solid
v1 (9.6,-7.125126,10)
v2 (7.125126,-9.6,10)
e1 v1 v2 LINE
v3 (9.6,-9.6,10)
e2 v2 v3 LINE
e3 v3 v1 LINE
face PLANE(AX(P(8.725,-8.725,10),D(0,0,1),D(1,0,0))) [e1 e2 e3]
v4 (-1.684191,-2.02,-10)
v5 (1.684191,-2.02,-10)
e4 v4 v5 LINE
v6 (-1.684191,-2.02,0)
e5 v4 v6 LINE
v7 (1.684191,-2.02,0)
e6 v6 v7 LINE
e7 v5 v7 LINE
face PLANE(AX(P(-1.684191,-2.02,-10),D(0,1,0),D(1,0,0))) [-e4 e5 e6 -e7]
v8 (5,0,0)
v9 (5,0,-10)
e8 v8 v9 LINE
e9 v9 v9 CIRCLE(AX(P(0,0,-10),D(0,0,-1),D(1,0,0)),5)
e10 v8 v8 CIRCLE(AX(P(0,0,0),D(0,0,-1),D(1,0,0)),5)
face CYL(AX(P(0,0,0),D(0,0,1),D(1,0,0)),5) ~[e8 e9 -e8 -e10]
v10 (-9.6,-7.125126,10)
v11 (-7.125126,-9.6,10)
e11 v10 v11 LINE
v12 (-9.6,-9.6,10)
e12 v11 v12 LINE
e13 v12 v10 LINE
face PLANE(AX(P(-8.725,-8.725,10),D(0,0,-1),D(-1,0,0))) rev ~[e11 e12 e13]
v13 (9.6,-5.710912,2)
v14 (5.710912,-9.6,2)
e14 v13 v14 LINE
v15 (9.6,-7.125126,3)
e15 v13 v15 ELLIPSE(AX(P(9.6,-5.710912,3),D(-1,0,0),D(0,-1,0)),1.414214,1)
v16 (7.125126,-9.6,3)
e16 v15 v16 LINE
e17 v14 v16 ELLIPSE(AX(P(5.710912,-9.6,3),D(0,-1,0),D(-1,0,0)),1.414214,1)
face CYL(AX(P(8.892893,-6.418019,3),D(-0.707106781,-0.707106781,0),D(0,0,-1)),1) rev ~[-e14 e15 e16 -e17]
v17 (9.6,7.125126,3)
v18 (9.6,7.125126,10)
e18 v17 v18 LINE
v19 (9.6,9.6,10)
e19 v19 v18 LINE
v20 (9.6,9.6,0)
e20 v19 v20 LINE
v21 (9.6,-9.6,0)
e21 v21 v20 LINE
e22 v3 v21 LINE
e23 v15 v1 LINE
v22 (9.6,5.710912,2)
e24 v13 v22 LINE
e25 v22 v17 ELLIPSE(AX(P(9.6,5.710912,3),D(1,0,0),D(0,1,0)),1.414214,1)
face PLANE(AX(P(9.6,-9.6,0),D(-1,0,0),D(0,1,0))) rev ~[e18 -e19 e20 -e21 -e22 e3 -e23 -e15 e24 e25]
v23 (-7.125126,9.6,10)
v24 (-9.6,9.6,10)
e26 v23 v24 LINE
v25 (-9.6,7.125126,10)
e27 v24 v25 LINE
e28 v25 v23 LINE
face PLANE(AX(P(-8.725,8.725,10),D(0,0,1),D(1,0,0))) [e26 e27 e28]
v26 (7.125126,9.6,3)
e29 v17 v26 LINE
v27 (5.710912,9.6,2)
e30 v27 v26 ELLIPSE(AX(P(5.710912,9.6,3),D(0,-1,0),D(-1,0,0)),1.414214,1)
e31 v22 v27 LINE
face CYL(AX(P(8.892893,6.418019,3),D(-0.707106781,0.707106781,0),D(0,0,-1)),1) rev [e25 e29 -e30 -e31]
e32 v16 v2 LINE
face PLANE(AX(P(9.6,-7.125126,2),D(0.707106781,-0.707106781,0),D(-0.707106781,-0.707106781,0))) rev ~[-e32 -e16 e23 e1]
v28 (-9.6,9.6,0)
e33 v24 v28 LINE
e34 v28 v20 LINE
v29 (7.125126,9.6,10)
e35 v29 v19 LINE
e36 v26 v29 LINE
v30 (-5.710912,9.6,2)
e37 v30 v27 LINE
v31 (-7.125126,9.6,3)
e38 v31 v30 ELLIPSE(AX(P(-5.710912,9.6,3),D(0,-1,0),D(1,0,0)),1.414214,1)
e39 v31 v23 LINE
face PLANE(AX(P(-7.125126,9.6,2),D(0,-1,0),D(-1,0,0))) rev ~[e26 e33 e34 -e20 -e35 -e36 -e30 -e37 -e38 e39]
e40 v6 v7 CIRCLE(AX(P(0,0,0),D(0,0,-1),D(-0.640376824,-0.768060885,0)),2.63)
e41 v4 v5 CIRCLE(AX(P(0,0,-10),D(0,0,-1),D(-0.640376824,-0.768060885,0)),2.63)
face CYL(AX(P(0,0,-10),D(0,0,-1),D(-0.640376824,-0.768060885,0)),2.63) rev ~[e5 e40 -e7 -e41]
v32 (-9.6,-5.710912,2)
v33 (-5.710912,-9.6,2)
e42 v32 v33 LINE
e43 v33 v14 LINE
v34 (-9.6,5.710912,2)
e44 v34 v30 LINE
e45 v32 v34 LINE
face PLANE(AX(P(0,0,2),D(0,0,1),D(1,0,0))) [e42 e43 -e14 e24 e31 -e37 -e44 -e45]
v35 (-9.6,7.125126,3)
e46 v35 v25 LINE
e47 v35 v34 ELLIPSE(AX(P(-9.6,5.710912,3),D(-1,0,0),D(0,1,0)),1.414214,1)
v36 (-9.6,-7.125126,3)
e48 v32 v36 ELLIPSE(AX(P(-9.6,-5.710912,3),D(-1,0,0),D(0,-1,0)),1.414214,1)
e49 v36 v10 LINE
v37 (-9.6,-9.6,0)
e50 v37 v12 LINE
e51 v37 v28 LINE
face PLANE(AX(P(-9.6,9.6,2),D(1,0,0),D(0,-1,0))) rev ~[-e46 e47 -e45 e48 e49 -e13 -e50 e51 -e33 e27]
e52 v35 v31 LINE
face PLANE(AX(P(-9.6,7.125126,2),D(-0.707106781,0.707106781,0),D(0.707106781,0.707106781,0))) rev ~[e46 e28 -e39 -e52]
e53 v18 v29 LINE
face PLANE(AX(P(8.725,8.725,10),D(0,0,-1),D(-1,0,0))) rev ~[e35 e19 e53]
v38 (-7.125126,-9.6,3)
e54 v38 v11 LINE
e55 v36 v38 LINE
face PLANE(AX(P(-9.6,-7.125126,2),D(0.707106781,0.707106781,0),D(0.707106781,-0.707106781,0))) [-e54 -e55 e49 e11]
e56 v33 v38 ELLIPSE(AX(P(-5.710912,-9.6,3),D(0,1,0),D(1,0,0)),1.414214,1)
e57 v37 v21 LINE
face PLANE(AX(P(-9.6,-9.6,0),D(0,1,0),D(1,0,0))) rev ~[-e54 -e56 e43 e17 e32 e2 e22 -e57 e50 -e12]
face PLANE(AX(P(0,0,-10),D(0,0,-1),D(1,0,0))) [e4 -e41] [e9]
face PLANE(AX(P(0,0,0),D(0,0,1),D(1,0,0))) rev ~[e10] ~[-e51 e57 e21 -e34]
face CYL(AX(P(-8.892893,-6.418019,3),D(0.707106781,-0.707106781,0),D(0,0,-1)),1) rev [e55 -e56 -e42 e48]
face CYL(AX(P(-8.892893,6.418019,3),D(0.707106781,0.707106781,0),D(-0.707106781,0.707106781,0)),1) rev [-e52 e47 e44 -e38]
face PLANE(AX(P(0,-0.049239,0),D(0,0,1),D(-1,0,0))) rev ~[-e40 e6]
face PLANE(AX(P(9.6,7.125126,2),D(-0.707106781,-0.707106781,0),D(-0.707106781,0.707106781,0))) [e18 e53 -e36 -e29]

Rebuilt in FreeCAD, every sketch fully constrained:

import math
import FreeCAD as App
import Part
import Sketcher
from FreeCAD import Vector
Q = App.Units.Quantity


def edges_at(feature, points):
    """Names of the edges that pass closest to the given points."""
    edges = feature.Shape.Edges
    near = lambda p: min(range(len(edges)), key=lambda i: edges[i].distToShape(Part.Vertex(*p))[0])
    return sorted({f"Edge{near(p) + 1}" for p in points})


def add_polygon(sketch, points):
    """Adds a closed chain of lines whose ends are joined by coincident constraints."""
    first, n = sketch.GeometryCount, len(points)
    for a, b in zip(points, points[1:] + points[:1]):
        sketch.addGeometry(Part.LineSegment(App.Vector(*a, 0), App.Vector(*b, 0)), False)
    for i in range(n):
        sketch.addConstraint(Sketcher.Constraint("Coincident", first + i, 2, first + (i + 1) % n, 1))

doc = App.newDocument("Part")
body = doc.addObject("PartDesign::Body", "Body")

sketch1 = body.newObject("Sketcher::SketchObject", "Sketch")
sketch1.AttachmentSupport = (doc.getObject("XY_Plane"), [""])
sketch1.MapMode = "FlatFace"
add_polygon(sketch1, [(-9.6, 9.6), (-9.6, -9.6), (9.6, -9.6), (9.6, 9.6)])
sketch1.addConstraint([
    Sketcher.Constraint("Vertical", 0),
    Sketcher.Constraint("Horizontal", 1),
    Sketcher.Constraint("Vertical", 2),
    Sketcher.Constraint("Horizontal", 3),
    Sketcher.Constraint("Symmetric", 0, 2, 2, 2, -1, 1),
    Sketcher.Constraint("Equal", 3, 0),
    Sketcher.Constraint("DistanceX", 1, 1, 1, 2, Q("19.2 mm")),
])
pad1 = body.newObject("PartDesign::Pad", "Pad")
pad1.Profile = sketch1
pad1.Length = 2

sketch2 = body.newObject("Sketcher::SketchObject", "Sketch001")
sketch2.AttachmentSupport = (doc.getObject("XY_Plane"), [""])
sketch2.MapMode = "FlatFace"
sketch2.AttachmentOffset = App.Placement(Vector(0, 0, 2), App.Rotation())
add_polygon(sketch2, [(-9.6, 7.125126), (-7.125126, 9.6), (-9.6, 9.6)])
add_polygon(sketch2, [(9.6, 9.6), (7.125126, 9.6), (9.6, 7.125126)])
add_polygon(sketch2, [(7.125126, -9.6), (9.6, -9.6), (9.6, -7.125126)])
add_polygon(sketch2, [(-9.6, -9.6), (-7.125126, -9.6), (-9.6, -7.125126)])
sketch2.addConstraint([
    Sketcher.Constraint("Horizontal", 1),
    Sketcher.Constraint("Vertical", 2),
    Sketcher.Constraint("Horizontal", 3),
    Sketcher.Constraint("Vertical", 5),
    Sketcher.Constraint("Horizontal", 6),
    Sketcher.Constraint("Vertical", 7),
    Sketcher.Constraint("Horizontal", 9),
    Sketcher.Constraint("Vertical", 11),
    Sketcher.Constraint("Symmetric", 1, 2, 6, 2, -1, 1),
    Sketcher.Constraint("Symmetric", 3, 2, 9, 2, -1, 1),
    Sketcher.Constraint("Symmetric", 4, 2, 10, 2, -1, 1),
    Sketcher.Constraint("Symmetric", 0, 2, 3, 2, -2),
    Sketcher.Constraint("Symmetric", 2, 2, 4, 2, -2),
    Sketcher.Constraint("Perpendicular", 0, 4),
    Sketcher.Constraint("Perpendicular", 4, 8),
    Sketcher.Constraint("Horizontal", 7, 2, 10, 2),
    Sketcher.Constraint("Distance", 0, Q("3.5 mm")),
    Sketcher.Constraint("DistanceY", -1, 1, 0, 2, Q("9.6 mm")),
    Sketcher.Constraint("DistanceX", 1, 2, -1, 1, Q("9.6 mm")),
])
pad2 = body.newObject("PartDesign::Pad", "Pad001")
pad2.Profile = sketch2
pad2.Length = 8
doc.recompute()

fillet = body.newObject("PartDesign::Fillet", "Fillet")
fillet.Base = (pad2, edges_at(pad2, [
    (-8.363, 8.363, 2),
    (8.363, 8.363, 2),
    (8.363, -8.363, 2),
    (-8.363, -8.363, 2),
]))
fillet.Radius = 1

sketch3 = body.newObject("Sketcher::SketchObject", "Sketch002")
sketch3.AttachmentSupport = (doc.getObject("XY_Plane"), [""])
sketch3.MapMode = "FlatFace"
sketch3.addGeometry(Part.Circle(Vector(0, 0, 0), Vector(0, 0, 1), 5), False)
sketch3.addConstraint([
    Sketcher.Constraint("Coincident", 0, 3, -1, 1),
    Sketcher.Constraint("Diameter", 0, Q("10 mm")),
])
pad3 = body.newObject("PartDesign::Pad", "Pad002")
pad3.Profile = sketch3
pad3.Length = 10
pad3.Reversed = True

sketch4 = body.newObject("Sketcher::SketchObject", "Sketch003")
sketch4.AttachmentSupport = (doc.getObject("XY_Plane"), [""])
sketch4.MapMode = "FlatFace"
sketch4.AttachmentOffset = App.Placement(Vector(0, 0, -10), App.Rotation())
sketch4.addGeometry([
    Part.LineSegment(Vector(1.684191, -2.02, 0), Vector(-1.684191, -2.02, 0)),
    Part.ArcOfCircle(Part.Circle(Vector(0, 0, 0), Vector(0, 0, 1), 2.63), math.radians(-50.180076), math.radians(230.180076)),
], False)
sketch4.addConstraint([
    Sketcher.Constraint("Coincident", 0, 1, 1, 1),
    Sketcher.Constraint("Coincident", 1, 2, 0, 2),
    Sketcher.Constraint("Horizontal", 0),
    Sketcher.Constraint("Coincident", 1, 3, -1, 1),
    Sketcher.Constraint("Radius", 1, Q("2.63 mm")),
    Sketcher.Constraint("DistanceY", 0, 1, -1, 1, Q("2.02 mm")),
])
pocket1 = body.newObject("PartDesign::Pocket", "Pocket")
pocket1.Profile = sketch4
pocket1.Length = 10
pocket1.Reversed = True

doc.recompute()
